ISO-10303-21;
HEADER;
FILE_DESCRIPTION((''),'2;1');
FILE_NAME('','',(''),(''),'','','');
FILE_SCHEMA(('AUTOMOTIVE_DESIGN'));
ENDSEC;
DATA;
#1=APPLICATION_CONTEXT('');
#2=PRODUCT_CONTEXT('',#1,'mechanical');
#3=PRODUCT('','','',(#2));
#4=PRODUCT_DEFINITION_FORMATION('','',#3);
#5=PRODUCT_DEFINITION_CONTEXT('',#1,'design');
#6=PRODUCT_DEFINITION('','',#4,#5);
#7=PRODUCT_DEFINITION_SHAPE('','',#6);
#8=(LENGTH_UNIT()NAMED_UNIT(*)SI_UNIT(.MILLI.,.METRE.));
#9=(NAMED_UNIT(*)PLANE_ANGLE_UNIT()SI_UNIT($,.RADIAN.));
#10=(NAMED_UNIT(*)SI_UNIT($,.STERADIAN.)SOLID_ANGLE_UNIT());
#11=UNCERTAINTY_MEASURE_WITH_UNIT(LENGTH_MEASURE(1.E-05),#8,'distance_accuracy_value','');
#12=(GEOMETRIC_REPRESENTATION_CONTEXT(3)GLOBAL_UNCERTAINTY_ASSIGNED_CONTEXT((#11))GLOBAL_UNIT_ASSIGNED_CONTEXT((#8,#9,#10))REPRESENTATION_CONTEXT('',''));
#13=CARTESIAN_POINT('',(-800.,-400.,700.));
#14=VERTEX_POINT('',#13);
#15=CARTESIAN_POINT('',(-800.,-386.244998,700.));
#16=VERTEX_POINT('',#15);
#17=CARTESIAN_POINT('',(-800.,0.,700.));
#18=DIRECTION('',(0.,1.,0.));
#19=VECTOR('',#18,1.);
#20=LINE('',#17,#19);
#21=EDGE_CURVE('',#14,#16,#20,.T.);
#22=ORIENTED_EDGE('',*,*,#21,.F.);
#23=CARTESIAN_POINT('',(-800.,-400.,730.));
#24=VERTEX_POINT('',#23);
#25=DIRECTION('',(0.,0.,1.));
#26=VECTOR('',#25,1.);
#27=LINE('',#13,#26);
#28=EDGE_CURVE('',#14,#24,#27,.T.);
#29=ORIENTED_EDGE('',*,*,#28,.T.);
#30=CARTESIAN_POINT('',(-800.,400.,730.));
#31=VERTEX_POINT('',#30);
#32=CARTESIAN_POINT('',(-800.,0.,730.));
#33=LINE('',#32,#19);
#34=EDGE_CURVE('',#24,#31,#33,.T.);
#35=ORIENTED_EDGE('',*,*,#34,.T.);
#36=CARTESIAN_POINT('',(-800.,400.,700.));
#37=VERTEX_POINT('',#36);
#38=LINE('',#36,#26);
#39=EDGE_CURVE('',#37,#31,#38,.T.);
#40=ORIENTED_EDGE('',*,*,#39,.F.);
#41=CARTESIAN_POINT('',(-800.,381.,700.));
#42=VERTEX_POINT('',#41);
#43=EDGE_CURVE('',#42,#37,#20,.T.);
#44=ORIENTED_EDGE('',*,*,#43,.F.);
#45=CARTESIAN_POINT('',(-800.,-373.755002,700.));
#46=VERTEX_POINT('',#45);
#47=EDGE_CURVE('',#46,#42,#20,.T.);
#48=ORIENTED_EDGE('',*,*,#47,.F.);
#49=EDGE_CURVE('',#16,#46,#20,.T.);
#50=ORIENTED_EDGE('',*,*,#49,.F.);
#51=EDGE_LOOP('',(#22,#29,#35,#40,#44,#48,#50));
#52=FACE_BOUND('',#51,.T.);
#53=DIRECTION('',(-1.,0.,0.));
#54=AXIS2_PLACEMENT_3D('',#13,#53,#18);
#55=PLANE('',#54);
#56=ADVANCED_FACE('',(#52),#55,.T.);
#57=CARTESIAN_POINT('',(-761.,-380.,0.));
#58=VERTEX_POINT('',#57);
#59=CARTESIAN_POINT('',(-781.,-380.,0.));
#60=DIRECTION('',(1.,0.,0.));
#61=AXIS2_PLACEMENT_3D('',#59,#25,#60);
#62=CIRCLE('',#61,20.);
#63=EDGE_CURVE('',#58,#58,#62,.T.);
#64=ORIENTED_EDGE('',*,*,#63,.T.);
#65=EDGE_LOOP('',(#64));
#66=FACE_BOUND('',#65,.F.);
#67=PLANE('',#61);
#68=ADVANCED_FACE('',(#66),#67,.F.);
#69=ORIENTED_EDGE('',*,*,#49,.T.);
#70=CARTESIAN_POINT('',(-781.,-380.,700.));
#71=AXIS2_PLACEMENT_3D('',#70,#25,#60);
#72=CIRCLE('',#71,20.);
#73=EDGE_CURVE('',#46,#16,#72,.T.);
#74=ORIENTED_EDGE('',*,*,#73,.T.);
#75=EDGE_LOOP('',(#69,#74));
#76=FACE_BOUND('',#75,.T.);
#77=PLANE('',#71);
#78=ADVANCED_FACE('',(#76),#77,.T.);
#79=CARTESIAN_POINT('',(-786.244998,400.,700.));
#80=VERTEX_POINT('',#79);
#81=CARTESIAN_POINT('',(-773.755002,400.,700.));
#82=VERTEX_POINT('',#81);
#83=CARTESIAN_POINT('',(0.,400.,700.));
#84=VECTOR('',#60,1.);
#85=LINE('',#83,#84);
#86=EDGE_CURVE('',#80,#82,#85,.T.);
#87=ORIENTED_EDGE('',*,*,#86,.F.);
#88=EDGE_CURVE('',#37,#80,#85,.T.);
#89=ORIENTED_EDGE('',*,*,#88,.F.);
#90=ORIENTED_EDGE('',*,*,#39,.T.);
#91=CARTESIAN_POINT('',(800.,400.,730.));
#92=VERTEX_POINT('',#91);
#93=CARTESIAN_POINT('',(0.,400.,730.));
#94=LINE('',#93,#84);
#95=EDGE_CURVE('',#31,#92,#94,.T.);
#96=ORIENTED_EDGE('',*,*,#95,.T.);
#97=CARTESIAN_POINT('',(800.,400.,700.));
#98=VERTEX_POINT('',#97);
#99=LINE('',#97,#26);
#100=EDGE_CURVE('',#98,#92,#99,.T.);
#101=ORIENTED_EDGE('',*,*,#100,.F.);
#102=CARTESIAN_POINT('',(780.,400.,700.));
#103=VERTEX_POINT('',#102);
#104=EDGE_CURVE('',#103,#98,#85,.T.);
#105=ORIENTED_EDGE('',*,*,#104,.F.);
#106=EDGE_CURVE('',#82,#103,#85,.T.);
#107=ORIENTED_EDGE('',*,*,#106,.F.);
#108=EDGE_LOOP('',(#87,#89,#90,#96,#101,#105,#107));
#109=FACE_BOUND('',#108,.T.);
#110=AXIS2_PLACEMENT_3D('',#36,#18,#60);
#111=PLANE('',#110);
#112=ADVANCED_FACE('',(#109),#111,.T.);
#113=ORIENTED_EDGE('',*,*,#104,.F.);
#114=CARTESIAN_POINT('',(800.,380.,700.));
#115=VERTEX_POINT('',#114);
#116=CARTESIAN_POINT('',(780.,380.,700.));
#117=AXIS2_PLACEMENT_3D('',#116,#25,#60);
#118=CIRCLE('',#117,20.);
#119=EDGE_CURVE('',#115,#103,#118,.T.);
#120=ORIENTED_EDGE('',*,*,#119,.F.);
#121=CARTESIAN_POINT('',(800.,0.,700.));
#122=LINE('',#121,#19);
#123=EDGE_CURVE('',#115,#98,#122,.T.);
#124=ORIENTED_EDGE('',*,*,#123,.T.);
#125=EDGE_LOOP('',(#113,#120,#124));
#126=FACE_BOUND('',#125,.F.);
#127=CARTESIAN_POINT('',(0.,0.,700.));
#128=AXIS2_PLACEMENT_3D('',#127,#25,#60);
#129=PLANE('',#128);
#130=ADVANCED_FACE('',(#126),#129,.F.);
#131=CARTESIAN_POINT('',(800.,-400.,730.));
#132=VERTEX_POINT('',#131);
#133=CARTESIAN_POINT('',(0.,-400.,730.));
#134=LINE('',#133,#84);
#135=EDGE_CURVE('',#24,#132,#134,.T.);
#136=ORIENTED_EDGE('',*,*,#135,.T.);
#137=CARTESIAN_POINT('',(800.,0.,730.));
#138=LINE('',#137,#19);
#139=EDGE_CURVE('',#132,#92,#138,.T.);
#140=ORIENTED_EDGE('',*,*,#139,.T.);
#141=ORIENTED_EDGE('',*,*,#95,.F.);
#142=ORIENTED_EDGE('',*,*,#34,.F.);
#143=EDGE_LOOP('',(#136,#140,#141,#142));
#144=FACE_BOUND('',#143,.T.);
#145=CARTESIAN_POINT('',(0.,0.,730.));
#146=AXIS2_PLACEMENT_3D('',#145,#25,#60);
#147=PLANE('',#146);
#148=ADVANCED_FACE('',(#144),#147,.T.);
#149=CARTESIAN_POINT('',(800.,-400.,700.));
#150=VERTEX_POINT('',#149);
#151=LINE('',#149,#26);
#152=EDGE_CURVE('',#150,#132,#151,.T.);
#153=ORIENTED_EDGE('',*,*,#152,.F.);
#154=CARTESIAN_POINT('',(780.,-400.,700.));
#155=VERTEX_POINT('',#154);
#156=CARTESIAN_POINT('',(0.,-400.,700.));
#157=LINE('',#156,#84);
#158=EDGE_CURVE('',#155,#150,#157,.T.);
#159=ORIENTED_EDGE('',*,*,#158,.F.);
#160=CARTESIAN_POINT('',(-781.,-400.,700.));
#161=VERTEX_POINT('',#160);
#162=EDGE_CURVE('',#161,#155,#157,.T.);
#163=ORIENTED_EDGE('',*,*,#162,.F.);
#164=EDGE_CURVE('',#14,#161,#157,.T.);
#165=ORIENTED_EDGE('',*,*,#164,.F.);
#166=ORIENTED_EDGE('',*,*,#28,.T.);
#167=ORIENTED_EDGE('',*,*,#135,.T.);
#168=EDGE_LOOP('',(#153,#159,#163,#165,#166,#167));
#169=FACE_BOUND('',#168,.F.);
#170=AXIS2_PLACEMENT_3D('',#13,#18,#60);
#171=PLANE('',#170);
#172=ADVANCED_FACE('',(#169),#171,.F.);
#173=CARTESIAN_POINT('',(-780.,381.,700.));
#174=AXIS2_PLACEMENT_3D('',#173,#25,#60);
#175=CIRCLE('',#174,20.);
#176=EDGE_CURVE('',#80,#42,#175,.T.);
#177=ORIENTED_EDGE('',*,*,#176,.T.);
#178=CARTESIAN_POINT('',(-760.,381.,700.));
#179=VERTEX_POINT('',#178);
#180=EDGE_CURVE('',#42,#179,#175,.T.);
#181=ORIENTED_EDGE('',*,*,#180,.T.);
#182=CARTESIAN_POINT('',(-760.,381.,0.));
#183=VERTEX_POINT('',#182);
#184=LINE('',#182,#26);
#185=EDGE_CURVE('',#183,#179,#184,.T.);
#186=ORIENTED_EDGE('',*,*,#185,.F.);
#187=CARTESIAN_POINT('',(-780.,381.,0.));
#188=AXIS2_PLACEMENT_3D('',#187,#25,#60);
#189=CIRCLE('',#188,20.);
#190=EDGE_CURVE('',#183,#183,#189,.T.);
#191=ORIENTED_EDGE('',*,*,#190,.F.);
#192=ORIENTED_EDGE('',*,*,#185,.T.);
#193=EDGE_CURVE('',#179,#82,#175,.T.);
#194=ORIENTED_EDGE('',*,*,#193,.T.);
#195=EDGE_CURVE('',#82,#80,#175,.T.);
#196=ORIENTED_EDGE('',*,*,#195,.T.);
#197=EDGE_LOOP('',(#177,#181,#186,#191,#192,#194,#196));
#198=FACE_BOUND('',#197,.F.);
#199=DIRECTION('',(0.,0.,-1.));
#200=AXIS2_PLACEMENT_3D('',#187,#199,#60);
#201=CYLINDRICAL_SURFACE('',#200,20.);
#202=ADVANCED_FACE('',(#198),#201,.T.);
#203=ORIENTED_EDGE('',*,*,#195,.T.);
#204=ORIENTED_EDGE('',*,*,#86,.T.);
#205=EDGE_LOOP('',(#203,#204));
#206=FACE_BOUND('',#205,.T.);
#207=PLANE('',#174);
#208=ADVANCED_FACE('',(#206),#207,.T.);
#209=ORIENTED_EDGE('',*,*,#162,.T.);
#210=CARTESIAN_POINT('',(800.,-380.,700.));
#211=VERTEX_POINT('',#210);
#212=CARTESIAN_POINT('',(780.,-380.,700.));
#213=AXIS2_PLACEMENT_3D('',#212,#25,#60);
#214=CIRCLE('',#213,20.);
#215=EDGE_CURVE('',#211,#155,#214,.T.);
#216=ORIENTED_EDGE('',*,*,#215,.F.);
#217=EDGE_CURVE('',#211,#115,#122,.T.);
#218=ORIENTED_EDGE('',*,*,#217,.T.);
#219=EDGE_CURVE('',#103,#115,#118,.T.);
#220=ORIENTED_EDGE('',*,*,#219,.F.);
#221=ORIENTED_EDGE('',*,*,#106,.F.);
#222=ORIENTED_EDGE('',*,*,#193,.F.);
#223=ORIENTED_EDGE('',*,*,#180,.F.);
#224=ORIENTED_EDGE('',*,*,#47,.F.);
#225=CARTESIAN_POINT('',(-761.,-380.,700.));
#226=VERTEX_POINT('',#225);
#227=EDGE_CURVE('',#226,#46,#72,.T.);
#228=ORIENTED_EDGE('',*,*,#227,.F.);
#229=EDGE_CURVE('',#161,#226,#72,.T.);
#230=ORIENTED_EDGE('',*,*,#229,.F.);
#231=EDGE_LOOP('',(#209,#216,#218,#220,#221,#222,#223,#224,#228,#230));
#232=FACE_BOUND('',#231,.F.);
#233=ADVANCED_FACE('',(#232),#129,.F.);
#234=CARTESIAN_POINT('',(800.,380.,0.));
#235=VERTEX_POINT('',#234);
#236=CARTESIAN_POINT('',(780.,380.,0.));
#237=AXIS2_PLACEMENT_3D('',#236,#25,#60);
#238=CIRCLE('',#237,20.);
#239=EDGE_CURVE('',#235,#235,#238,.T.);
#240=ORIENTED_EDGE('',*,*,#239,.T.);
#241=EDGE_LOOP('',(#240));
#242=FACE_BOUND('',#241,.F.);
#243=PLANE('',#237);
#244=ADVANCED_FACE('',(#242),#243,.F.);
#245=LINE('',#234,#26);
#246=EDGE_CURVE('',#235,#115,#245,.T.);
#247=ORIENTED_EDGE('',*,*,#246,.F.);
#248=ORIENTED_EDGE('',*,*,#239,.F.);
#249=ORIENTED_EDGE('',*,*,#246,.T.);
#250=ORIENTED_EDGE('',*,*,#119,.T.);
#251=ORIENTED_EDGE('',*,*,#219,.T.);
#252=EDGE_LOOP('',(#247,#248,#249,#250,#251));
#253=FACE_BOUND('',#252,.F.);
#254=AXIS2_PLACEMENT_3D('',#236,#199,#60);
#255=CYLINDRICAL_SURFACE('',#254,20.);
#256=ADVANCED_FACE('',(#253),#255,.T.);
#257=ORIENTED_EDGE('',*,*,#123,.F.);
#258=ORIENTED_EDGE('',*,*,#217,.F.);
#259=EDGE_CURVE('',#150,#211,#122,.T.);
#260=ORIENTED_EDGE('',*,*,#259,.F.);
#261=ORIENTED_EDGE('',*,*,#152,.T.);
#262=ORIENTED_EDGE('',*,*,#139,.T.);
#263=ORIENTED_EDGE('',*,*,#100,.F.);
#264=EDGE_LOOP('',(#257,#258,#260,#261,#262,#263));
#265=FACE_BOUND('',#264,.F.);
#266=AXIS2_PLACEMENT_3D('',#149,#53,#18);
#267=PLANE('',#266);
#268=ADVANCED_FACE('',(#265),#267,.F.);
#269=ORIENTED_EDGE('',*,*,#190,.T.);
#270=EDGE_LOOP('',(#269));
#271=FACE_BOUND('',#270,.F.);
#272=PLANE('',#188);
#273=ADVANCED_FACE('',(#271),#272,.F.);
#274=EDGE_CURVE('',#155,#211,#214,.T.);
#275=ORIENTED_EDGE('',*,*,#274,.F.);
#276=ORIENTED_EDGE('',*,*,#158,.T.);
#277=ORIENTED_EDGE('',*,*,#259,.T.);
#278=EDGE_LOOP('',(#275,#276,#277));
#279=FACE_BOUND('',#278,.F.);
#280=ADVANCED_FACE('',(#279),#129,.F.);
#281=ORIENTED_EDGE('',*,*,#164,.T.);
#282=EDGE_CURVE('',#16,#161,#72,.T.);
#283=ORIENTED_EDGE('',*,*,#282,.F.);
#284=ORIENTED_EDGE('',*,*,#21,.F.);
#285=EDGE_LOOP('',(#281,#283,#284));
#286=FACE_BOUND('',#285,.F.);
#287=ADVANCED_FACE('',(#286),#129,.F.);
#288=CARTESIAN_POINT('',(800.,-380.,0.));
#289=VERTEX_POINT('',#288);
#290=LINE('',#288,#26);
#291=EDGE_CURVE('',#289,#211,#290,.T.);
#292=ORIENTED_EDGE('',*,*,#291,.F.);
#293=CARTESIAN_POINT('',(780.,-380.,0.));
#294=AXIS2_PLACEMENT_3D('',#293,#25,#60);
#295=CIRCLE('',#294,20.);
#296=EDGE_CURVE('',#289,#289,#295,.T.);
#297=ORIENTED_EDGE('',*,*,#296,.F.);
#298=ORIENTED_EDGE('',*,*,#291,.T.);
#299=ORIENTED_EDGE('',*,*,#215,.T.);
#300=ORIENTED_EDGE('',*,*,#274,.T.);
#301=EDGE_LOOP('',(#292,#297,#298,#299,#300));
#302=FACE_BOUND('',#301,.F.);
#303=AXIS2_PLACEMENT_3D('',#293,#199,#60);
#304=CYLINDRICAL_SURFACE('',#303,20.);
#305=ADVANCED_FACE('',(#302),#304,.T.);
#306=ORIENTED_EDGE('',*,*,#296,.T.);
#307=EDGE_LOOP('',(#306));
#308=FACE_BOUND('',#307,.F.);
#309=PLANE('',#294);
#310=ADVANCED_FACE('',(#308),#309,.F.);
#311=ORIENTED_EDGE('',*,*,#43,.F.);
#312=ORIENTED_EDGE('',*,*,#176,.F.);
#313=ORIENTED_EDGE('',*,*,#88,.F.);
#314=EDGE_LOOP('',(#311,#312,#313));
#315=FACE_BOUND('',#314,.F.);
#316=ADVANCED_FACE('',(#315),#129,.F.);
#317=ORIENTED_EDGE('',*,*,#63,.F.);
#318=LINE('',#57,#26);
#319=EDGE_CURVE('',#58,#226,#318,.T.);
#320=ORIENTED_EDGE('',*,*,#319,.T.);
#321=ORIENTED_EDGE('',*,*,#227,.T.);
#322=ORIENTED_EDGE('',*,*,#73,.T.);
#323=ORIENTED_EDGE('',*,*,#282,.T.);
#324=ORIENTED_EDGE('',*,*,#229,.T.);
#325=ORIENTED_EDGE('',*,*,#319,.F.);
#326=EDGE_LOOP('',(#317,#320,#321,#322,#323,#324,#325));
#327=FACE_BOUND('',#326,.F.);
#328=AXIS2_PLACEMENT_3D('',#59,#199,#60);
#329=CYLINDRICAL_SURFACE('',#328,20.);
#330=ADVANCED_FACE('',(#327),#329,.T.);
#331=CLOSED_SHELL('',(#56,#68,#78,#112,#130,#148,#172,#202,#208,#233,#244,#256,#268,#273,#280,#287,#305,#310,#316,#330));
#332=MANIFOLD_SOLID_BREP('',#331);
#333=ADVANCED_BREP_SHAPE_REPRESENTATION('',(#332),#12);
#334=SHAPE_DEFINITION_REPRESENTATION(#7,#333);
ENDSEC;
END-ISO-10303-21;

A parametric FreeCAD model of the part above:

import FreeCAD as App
import Part
import Sketcher
from FreeCAD import Vector


def add_polygon(sketch, points):
    """Adds a closed chain of lines whose ends are joined by coincident constraints."""
    first, n = sketch.GeometryCount, len(points)
    for a, b in zip(points, points[1:] + points[:1]):
        sketch.addGeometry(Part.LineSegment(App.Vector(*a, 0), App.Vector(*b, 0)), False)
    for i in range(n):
        sketch.addConstraint(Sketcher.Constraint("Coincident", first + i, 2, first + (i + 1) % n, 1))

doc = App.newDocument("Part")
body = doc.addObject("PartDesign::Body", "Body")

sketch1 = doc.addObject("Sketcher::SketchObject", "Sketch")
body.addObject(sketch1)
sketch1.AttachmentSupport = (doc.XY_Plane, [""])
sketch1.MapMode = "FlatFace"
sketch1.addGeometry(Part.Circle(Vector(-780, 381, 0), Vector(0, 0, 1), 20), False)
sketch1.addConstraint([
    Sketcher.Constraint("Diameter", 0, 40.0),
    Sketcher.Constraint("DistanceX", 0, 3, -1, 1, 780.0),
    Sketcher.Constraint("DistanceY", -1, 1, 0, 3, 381.0),
])
pad1 = doc.addObject("PartDesign::Pad", "Pad")
body.addObject(pad1)
pad1.Profile = sketch1
pad1.Length = 700
body2 = doc.addObject("PartDesign::Body", "Body001")

sketch2 = doc.addObject("Sketcher::SketchObject", "Sketch001")
body2.addObject(sketch2)
sketch2.AttachmentSupport = (doc.getObject("XY_Plane001"), [""])
sketch2.MapMode = "FlatFace"
sketch2.addGeometry(Part.Circle(Vector(780, -380, 0), Vector(0, 0, 1), 20), False)
sketch2.addConstraint([
    Sketcher.Constraint("Diameter", 0, 40.0),
    Sketcher.Constraint("DistanceX", -1, 1, 0, 3, 780.0),
    Sketcher.Constraint("DistanceY", 0, 3, -1, 1, 380.0),
])
pad2 = doc.addObject("PartDesign::Pad", "Pad001")
body2.addObject(pad2)
pad2.Profile = sketch2
pad2.Length = 700
body3 = doc.addObject("PartDesign::Body", "Body002")

sketch3 = doc.addObject("Sketcher::SketchObject", "Sketch002")
body3.addObject(sketch3)
sketch3.AttachmentSupport = (doc.getObject("XY_Plane002"), [""])
sketch3.MapMode = "FlatFace"
sketch3.addGeometry(Part.Circle(Vector(780, 380, 0), Vector(0, 0, 1), 20), False)
sketch3.addConstraint([
    Sketcher.Constraint("Diameter", 0, 40.0),
    Sketcher.Constraint("DistanceX", -1, 1, 0, 3, 780.0),
    Sketcher.Constraint("DistanceY", -1, 1, 0, 3, 380.0),
])
pad3 = doc.addObject("PartDesign::Pad", "Pad002")
body3.addObject(pad3)
pad3.Profile = sketch3
pad3.Length = 700
body4 = doc.addObject("PartDesign::Body", "Body003")

sketch4 = doc.addObject("Sketcher::SketchObject", "Sketch003")
body4.addObject(sketch4)
sketch4.AttachmentSupport = (doc.getObject("XY_Plane003"), [""])
sketch4.MapMode = "FlatFace"
sketch4.AttachmentOffset = App.Placement(Vector(0, 0, 700), App.Rotation())
add_polygon(sketch4, [(-800, 400), (-800, -400), (800, -400), (800, 400)])
sketch4.addConstraint([
    Sketcher.Constraint("Vertical", 0),
    Sketcher.Constraint("Horizontal", 1),
    Sketcher.Constraint("Vertical", 2),
    Sketcher.Constraint("Horizontal", 3),
    Sketcher.Constraint("Symmetric", 0, 2, 2, 2, -1, 1),
    Sketcher.Constraint("DistanceX", 1, 1, 1, 2, 1600.0),
    Sketcher.Constraint("DistanceY", 0, 2, 0, 1, 800.0),
])
pad4 = doc.addObject("PartDesign::Pad", "Pad003")
body4.addObject(pad4)
pad4.Profile = sketch4
pad4.Length = 30
body5 = doc.addObject("PartDesign::Body", "Body004")
body5.AllowCompound = True

sketch5 = doc.addObject("Sketcher::SketchObject", "Sketch004")
body5.addObject(sketch5)
sketch5.AttachmentSupport = (doc.getObject("XY_Plane004"), [""])
sketch5.MapMode = "FlatFace"
sketch5.addGeometry(Part.Circle(Vector(-781, -380, 0), Vector(0, 0, 1), 20), False)
sketch5.addConstraint([
    Sketcher.Constraint("Diameter", 0, 40.0),
    Sketcher.Constraint("DistanceX", 0, 3, -1, 1, 781.0),
    Sketcher.Constraint("DistanceY", 0, 3, -1, 1, 380.0),
])
pad5 = doc.addObject("PartDesign::Pad", "Pad004")
body5.addObject(pad5)
pad5.Profile = sketch5
pad5.Length = 700
doc.recompute()

boolean = doc.addObject("PartDesign::Boolean", "Boolean")
body5.addObject(boolean)
boolean.Type = "Fuse"
boolean.addObjects([body])
doc.recompute()

boolean2 = doc.addObject("PartDesign::Boolean", "Boolean001")
body5.addObject(boolean2)
boolean2.Type = "Fuse"
boolean2.addObjects([body2])
doc.recompute()

boolean3 = doc.addObject("PartDesign::Boolean", "Boolean002")
body5.addObject(boolean3)
boolean3.Type = "Fuse"
boolean3.addObjects([body3])
doc.recompute()

boolean4 = doc.addObject("PartDesign::Boolean", "Boolean003")
body5.addObject(boolean4)
boolean4.Type = "Fuse"
boolean4.addObjects([body4])

doc.recompute()
